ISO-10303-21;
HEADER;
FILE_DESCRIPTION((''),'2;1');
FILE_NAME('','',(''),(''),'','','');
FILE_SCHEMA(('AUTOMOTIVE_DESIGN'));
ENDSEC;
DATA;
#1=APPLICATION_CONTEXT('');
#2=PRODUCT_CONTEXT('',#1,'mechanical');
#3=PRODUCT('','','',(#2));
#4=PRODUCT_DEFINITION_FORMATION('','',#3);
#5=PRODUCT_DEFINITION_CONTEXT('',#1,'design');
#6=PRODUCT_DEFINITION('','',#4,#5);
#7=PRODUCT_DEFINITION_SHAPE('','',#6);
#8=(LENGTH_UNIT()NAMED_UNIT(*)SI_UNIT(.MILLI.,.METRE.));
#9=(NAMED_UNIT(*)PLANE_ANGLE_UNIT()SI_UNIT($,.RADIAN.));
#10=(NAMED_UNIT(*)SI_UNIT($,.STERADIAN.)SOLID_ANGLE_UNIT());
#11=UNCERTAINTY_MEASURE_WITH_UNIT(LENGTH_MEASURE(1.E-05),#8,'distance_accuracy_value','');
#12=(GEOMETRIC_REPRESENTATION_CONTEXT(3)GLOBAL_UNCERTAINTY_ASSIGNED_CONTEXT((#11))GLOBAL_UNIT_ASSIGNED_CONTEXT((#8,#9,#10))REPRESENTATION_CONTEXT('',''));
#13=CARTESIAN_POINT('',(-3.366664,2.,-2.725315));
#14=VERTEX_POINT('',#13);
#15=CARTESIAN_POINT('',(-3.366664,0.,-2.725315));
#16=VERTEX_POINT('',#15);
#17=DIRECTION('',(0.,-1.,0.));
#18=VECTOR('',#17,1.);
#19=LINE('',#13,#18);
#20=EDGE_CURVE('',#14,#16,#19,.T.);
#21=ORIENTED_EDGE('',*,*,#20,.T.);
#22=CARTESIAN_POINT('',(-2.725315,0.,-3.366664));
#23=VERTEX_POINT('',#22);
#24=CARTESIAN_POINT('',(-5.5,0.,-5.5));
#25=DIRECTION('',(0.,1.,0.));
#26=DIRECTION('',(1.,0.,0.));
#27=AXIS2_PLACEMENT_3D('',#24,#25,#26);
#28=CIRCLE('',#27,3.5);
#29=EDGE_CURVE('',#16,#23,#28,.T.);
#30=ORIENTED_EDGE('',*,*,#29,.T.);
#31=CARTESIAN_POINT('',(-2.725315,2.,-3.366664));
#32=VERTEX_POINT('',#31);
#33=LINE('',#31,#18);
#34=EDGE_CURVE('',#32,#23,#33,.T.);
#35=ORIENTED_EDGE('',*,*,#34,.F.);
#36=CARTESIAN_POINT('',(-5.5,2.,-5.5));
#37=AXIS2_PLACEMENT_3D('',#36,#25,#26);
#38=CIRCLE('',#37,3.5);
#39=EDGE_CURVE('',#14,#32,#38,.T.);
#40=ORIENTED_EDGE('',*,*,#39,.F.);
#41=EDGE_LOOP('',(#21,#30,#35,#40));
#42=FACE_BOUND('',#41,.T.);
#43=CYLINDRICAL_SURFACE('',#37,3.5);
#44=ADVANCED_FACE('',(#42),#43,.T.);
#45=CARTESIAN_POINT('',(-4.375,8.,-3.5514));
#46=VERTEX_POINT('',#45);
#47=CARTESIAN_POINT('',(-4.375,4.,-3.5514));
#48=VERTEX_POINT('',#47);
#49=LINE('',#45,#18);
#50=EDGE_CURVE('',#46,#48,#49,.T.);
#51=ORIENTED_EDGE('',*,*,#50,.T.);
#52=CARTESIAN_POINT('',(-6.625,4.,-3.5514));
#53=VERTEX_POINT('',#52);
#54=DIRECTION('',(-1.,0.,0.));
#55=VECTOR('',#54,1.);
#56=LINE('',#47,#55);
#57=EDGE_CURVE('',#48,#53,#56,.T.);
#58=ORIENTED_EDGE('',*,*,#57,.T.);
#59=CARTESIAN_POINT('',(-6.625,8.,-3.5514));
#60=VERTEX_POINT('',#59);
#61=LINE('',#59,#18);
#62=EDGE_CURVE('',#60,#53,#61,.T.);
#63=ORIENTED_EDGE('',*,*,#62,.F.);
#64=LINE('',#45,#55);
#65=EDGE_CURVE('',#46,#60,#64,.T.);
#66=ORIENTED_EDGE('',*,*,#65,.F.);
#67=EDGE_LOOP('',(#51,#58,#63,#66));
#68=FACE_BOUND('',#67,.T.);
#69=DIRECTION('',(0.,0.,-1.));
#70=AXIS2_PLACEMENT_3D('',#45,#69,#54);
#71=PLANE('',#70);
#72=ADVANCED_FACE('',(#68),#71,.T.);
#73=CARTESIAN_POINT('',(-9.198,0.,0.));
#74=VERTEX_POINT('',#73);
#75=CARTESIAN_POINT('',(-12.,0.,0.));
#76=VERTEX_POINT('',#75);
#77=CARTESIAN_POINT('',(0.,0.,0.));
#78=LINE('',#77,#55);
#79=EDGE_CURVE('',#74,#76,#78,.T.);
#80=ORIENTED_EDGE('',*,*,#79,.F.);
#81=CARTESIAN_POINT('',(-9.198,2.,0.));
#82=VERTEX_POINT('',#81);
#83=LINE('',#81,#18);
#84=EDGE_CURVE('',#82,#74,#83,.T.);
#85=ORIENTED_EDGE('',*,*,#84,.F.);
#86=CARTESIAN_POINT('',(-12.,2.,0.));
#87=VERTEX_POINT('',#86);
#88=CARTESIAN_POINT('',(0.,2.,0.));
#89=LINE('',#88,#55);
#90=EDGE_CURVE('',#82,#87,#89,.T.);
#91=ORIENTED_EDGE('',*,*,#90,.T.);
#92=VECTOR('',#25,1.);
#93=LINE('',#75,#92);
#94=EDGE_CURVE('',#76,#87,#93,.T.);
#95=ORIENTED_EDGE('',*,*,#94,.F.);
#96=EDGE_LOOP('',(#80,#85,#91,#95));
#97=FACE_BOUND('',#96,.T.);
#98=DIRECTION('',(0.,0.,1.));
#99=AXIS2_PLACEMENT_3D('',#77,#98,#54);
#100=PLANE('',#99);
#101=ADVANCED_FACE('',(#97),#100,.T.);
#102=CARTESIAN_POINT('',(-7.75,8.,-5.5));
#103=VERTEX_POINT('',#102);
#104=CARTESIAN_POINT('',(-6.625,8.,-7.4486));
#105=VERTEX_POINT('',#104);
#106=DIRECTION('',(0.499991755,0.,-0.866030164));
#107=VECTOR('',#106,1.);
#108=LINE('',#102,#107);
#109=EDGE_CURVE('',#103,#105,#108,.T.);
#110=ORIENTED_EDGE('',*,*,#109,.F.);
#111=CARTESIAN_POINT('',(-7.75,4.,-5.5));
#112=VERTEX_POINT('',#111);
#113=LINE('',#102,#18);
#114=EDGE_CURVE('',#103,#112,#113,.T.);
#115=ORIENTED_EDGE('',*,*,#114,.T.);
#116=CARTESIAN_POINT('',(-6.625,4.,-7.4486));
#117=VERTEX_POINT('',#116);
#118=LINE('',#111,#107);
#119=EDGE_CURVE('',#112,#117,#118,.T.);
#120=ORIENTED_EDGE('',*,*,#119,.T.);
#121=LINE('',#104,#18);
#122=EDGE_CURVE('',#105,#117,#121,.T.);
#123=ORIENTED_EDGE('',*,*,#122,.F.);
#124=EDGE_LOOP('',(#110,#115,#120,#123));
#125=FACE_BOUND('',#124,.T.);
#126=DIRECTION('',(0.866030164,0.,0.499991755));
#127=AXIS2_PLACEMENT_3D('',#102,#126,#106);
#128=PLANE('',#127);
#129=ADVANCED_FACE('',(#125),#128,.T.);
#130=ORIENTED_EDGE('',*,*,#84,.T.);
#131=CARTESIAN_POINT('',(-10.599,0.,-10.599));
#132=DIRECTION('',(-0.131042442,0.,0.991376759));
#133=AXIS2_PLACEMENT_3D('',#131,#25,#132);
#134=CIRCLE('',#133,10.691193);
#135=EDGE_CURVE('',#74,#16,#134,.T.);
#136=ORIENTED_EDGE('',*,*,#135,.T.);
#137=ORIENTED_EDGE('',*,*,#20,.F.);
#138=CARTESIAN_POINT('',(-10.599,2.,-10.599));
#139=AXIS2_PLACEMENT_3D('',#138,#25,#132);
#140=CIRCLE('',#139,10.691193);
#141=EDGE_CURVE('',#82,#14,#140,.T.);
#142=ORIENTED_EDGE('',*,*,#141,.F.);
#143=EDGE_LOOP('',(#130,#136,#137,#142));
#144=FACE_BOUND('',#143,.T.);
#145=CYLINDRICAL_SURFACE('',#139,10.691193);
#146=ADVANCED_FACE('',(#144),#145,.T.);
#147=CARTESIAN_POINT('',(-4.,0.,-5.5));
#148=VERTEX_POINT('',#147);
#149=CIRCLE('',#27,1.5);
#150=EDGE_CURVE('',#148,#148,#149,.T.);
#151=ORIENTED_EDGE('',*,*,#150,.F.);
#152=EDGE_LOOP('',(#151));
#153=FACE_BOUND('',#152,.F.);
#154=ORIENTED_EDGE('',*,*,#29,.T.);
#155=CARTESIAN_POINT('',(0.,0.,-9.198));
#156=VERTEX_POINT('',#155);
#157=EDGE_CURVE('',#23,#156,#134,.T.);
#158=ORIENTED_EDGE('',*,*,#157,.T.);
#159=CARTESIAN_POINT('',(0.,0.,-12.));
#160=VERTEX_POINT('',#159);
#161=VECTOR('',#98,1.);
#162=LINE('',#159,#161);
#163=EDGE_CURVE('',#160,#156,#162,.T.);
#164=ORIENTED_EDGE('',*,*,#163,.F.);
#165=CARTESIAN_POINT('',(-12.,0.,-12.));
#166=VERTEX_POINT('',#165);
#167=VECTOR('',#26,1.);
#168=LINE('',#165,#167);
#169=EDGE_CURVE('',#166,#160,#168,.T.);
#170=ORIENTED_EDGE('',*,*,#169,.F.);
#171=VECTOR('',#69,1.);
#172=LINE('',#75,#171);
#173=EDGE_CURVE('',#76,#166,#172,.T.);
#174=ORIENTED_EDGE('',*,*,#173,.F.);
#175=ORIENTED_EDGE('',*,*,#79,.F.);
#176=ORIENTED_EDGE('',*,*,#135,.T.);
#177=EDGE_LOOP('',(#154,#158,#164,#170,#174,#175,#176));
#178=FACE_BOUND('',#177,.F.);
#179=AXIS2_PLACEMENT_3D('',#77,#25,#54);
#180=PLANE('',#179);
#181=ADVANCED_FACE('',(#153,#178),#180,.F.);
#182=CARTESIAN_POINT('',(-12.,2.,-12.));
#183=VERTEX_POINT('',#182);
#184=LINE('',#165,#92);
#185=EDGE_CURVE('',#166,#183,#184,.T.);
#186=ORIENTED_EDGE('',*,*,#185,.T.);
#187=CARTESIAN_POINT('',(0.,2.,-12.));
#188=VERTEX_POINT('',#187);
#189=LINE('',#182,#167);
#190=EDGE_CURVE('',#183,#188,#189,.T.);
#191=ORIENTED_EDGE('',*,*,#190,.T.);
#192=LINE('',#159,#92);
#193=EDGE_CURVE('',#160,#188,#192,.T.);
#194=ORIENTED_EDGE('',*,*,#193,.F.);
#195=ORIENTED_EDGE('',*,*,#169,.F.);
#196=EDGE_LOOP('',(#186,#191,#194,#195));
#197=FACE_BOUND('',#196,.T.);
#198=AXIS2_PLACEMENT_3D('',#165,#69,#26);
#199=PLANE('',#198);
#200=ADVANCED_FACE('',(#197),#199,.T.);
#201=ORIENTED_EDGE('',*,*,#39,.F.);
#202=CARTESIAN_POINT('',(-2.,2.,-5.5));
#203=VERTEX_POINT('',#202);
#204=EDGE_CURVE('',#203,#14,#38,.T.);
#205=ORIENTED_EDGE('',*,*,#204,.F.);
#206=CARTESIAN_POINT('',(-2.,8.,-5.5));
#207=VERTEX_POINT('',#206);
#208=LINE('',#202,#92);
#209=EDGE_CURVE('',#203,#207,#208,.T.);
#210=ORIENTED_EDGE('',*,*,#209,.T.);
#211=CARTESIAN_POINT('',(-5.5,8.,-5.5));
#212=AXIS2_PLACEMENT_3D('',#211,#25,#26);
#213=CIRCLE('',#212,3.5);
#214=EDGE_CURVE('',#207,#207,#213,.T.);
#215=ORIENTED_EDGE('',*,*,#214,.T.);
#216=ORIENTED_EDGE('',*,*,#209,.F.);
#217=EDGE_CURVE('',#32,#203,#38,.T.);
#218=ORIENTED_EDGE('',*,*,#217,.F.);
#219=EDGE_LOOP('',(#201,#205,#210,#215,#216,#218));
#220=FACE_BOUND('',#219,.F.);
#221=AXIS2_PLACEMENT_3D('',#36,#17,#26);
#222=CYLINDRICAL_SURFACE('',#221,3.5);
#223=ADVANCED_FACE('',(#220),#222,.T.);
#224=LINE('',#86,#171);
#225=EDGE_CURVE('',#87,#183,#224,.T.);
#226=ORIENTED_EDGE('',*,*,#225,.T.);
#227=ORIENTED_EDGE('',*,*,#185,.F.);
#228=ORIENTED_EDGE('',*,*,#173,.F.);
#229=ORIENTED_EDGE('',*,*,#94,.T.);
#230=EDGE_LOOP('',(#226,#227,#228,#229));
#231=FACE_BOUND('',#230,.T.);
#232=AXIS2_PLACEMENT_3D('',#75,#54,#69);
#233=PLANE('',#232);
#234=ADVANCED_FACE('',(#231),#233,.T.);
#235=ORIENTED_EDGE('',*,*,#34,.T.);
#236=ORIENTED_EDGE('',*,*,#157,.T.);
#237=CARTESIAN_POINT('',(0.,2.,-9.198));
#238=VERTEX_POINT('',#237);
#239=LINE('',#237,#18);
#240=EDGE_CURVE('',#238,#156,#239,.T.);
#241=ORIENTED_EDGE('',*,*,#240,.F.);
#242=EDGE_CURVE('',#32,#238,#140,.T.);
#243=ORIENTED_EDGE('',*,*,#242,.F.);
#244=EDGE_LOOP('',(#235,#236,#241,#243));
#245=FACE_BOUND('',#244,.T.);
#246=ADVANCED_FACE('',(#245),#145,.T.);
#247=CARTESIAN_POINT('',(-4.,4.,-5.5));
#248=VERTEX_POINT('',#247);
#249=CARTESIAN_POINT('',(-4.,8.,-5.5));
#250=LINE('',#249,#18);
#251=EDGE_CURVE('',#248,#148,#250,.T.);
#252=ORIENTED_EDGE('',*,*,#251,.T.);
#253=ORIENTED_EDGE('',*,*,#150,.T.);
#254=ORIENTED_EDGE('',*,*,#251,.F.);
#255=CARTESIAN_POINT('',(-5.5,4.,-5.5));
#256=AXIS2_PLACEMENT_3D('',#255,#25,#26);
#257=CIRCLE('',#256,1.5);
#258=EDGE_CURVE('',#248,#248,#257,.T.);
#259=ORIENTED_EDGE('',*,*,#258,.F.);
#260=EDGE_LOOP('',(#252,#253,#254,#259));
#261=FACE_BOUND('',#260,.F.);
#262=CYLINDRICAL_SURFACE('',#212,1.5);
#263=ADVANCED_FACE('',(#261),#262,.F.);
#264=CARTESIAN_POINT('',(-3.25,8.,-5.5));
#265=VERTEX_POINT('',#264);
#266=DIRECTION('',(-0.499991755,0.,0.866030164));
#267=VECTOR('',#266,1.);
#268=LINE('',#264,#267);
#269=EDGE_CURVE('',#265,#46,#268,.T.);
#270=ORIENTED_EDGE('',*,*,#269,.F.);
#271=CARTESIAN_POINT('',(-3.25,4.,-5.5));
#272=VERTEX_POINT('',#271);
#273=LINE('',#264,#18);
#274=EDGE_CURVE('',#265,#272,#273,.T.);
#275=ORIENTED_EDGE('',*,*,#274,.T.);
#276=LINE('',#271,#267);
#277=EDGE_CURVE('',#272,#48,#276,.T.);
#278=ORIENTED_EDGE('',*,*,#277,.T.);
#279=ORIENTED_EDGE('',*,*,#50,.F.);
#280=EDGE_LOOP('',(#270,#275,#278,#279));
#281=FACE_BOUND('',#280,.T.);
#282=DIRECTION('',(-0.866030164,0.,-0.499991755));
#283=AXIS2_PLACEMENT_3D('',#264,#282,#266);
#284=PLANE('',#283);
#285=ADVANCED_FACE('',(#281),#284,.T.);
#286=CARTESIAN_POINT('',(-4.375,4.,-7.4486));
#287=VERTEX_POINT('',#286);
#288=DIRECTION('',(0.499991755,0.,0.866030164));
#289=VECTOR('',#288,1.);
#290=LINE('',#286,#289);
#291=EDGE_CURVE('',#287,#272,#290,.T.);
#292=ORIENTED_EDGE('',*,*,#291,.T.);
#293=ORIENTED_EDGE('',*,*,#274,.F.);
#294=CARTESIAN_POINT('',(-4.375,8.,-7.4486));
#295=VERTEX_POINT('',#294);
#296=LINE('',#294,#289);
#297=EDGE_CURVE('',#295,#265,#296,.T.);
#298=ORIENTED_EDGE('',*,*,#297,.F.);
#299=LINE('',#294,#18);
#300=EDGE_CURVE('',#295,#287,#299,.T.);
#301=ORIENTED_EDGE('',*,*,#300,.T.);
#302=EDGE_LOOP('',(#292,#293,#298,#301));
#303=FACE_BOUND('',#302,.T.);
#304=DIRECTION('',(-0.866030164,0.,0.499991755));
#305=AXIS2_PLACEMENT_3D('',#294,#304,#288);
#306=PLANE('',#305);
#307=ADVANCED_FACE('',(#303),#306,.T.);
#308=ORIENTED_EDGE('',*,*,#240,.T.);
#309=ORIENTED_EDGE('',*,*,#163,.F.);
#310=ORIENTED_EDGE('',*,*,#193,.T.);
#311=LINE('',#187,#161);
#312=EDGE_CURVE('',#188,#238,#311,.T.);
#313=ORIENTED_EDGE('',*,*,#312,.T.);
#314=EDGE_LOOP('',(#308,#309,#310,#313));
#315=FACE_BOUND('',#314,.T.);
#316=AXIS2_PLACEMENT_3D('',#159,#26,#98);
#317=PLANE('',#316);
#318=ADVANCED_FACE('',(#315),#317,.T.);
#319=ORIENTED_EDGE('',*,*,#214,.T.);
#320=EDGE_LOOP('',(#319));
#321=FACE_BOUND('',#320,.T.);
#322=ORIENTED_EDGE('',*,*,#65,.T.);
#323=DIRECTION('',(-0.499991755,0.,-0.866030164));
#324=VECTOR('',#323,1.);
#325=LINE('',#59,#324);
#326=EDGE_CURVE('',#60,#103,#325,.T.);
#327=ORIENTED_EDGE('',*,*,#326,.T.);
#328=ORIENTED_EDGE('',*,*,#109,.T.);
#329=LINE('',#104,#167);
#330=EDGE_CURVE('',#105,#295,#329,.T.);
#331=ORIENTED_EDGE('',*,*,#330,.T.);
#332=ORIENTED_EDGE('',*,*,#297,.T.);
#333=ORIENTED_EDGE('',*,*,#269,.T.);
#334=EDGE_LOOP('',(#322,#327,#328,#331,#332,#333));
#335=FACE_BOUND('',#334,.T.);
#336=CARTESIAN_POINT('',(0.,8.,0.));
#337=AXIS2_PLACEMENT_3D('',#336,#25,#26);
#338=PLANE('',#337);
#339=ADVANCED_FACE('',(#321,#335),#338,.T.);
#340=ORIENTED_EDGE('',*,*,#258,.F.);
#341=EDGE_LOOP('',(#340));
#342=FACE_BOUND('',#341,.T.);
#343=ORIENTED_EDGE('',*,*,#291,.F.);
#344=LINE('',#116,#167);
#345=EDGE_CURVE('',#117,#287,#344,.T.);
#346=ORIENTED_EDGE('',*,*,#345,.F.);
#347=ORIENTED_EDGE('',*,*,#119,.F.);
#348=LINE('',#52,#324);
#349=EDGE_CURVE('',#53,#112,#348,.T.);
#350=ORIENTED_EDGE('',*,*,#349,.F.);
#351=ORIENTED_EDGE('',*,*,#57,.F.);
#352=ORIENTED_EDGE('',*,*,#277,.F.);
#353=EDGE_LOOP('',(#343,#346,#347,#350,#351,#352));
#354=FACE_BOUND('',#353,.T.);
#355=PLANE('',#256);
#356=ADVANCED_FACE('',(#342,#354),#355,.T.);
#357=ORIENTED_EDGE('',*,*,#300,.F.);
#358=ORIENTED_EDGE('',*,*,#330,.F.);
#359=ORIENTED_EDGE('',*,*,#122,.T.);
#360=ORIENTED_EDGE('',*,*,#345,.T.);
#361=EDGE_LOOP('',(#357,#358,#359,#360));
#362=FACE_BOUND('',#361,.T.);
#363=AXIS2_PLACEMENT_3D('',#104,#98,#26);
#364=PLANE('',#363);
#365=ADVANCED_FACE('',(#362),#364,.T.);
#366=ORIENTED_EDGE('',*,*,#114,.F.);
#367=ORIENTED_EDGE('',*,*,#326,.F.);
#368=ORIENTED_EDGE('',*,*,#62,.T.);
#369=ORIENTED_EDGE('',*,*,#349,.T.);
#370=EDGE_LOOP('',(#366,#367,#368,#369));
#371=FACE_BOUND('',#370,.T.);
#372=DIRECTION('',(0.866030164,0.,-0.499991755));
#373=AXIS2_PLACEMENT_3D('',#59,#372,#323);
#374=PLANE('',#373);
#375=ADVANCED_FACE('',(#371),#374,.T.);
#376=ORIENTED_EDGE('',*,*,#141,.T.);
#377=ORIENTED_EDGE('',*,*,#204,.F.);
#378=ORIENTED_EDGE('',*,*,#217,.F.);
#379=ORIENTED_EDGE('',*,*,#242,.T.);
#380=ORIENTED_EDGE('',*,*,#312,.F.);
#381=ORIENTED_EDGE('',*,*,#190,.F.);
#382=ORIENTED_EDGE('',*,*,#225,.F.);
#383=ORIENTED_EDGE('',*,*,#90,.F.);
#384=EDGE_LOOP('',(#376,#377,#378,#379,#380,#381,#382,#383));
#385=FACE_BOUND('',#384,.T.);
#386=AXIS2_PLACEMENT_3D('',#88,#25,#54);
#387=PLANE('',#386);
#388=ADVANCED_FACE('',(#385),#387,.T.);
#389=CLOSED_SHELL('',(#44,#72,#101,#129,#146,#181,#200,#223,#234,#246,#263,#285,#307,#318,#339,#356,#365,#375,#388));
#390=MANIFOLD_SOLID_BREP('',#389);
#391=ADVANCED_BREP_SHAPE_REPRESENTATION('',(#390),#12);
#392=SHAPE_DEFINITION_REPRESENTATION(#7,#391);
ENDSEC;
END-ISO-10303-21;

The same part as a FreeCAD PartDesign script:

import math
import FreeCAD as App
import Part
import Sketcher

V = App.Vector
Q = App.Units.Quantity

doc = App.newDocument("Part")
body = doc.addObject("PartDesign::Body", "Body")

# Sketch on XZ plane
sketch1 = body.newObject("Sketcher::SketchObject", "Sketch")
sketch1.AttachmentSupport = (doc.getObject("XZ_Plane"), [""])
sketch1.MapMode = "FlatFace"
sketch1.addGeometry(Part.LineSegment(V(-12, 0, 0), V(0, 0, 0)), False)
sketch1.addGeometry(Part.LineSegment(V(0, 0, 0), V(0, -12, 0)), False)
sketch1.addGeometry(Part.LineSegment(V(0, -12, 0), V(-12, -12, 0)), False)
sketch1.addGeometry(Part.LineSegment(V(-12, -12, 0), V(-12, 0, 0)), False)
sketch1.addConstraint(Sketcher.Constraint("Coincident", 0, 2, 1, 1))
sketch1.addConstraint(Sketcher.Constraint("Coincident", 1, 2, 2, 1))
sketch1.addConstraint(Sketcher.Constraint("Coincident", 2, 2, 3, 1))
sketch1.addConstraint(Sketcher.Constraint("Coincident", 3, 2, 0, 1))
sketch1.addConstraint(Sketcher.Constraint("Horizontal", 0))
sketch1.addConstraint(Sketcher.Constraint("Vertical", 1))
sketch1.addConstraint(Sketcher.Constraint("Horizontal", 2))
sketch1.addConstraint(Sketcher.Constraint("Vertical", 3))
sketch1.addConstraint(Sketcher.Constraint("Coincident", 0, 2, -1, 1))
sketch1.addConstraint(Sketcher.Constraint("Equal", 2, 1))
sketch1.addConstraint(Sketcher.Constraint("DistanceX", 0, 1, 0, 2, 12.0))
pad1 = body.newObject("PartDesign::Pad", "Pad")
pad1.Profile = sketch1
pad1.Length = 2
pad1.Reversed = True

# Sketch on XZ plane
sketch2 = body.newObject("Sketcher::SketchObject", "Sketch001")
sketch2.AttachmentSupport = (doc.getObject("XZ_Plane"), [""])
sketch2.MapMode = "FlatFace"
sketch2.AttachmentOffset = App.Placement(V(0, 0, -2), App.Rotation())
sketch2.addGeometry(Part.Circle(V(-5.5, -5.5, 0), V(0, 0, 1), 3.5), False)
sketch2.addConstraint(Sketcher.Constraint("Diameter", 0, 7.0))
sketch2.addConstraint(Sketcher.Constraint("DistanceX", 0, 3, -1, 1, 5.5))
sketch2.addConstraint(Sketcher.Constraint("DistanceY", 0, 3, -1, 1, 5.5))
pad2 = body.newObject("PartDesign::Pad", "Pad001")
pad2.Profile = sketch2
pad2.Length = 6
pad2.Reversed = True

# Sketch on XZ plane
sketch3 = body.newObject("Sketcher::SketchObject", "Sketch002")
sketch3.AttachmentSupport = (doc.getObject("XZ_Plane"), [""])
sketch3.MapMode = "FlatFace"
sketch3.AttachmentOffset = App.Placement(V(0, 0, -8), App.Rotation())
sketch3.addGeometry(Part.Circle(V(-5.5, -5.5, 0), V(0, 0, 1), 1.5), False)
sketch3.addConstraint(Sketcher.Constraint("Diameter", 0, 3.0))
sketch3.addConstraint(Sketcher.Constraint("DistanceX", 0, 3, -1, 1, 5.5))
sketch3.addConstraint(Sketcher.Constraint("DistanceY", 0, 3, -1, 1, 5.5))
pocket1 = body.newObject("PartDesign::Pocket", "Pocket")
pocket1.Profile = sketch3
pocket1.Length = 8
pocket1.Reversed = True

# Sketch on XZ plane
sketch4 = body.newObject("Sketcher::SketchObject", "Sketch003")
sketch4.AttachmentSupport = (doc.getObject("XZ_Plane"), [""])
sketch4.MapMode = "FlatFace"
sketch4.AttachmentOffset = App.Placement(V(0, 0, -8), App.Rotation())
sketch4.addGeometry(Part.LineSegment(V(-4.4, -3.6, 0), V(-3.2, -5.5, 0)), False)
sketch4.addGeometry(Part.LineSegment(V(-3.2, -5.5, 0), V(-4.4, -7.4, 0)), False)
sketch4.addGeometry(Part.LineSegment(V(-4.4, -7.4, 0), V(-6.6, -7.4, 0)), False)
sketch4.addGeometry(Part.LineSegment(V(-6.6, -7.4, 0), V(-7.8, -5.5, 0)), False)
sketch4.addGeometry(Part.LineSegment(V(-7.8, -5.5, 0), V(-6.6, -3.6, 0)), False)
sketch4.addGeometry(Part.LineSegment(V(-6.6, -3.6, 0), V(-4.4, -3.6, 0)), False)
sketch4.addGeometry(Part.Circle(V(-5.5, -5.5, 0), V(0, 0, 1), 1.5), False)
sketch4.addConstraint(Sketcher.Constraint("Coincident", 0, 2, 1, 1))
sketch4.addConstraint(Sketcher.Constraint("Coincident", 1, 2, 2, 1))
sketch4.addConstraint(Sketcher.Constraint("Coincident", 2, 2, 3, 1))
sketch4.addConstraint(Sketcher.Constraint("Coincident", 3, 2, 4, 1))
sketch4.addConstraint(Sketcher.Constraint("Coincident", 4, 2, 5, 1))
sketch4.addConstraint(Sketcher.Constraint("Coincident", 5, 2, 0, 1))
sketch4.addConstraint(Sketcher.Constraint("Horizontal", 2))
sketch4.addConstraint(Sketcher.Constraint("Horizontal", 5))
sketch4.addConstraint(Sketcher.Constraint("Parallel", 0, 3))
sketch4.addConstraint(Sketcher.Constraint("Parallel", 1, 4))
sketch4.addConstraint(Sketcher.Constraint("Horizontal", 6, 3, 0, 2))
sketch4.addConstraint(Sketcher.Constraint("Horizontal", 0, 2, 3, 2))
sketch4.addConstraint(Sketcher.Constraint("Vertical", 2, 2, 4, 2))
sketch4.addConstraint(Sketcher.Constraint("Vertical", 1, 2, 5, 2))
sketch4.addConstraint(Sketcher.Constraint("Diameter", 6, 3.0))
sketch4.addConstraint(Sketcher.Constraint("DistanceX", 3, 2, 0, 2, 4.5))
sketch4.addConstraint(Sketcher.Constraint("Angle", 0, Q("-60.0005 deg")))
sketch4.addConstraint(Sketcher.Constraint("DistanceX", 2, 2, 2, 1, 2.25))
sketch4.addConstraint(Sketcher.Constraint("DistanceX", 6, 3, -1, 1, 5.5))
sketch4.addConstraint(Sketcher.Constraint("DistanceY", 6, 3, -1, 1, 5.5))
sketch4.addConstraint(Sketcher.Constraint("DistanceX", 0, 2, -1, 1, 3.25))
pocket2 = body.newObject("PartDesign::Pocket", "Pocket001")
pocket2.Profile = sketch4
pocket2.Length = 4
pocket2.Reversed = True

# Sketch on XZ plane
sketch5 = body.newObject("Sketcher::SketchObject", "Sketch004")
sketch5.AttachmentSupport = (doc.getObject("XZ_Plane"), [""])
sketch5.MapMode = "FlatFace"
sketch5.AttachmentOffset = App.Placement(V(0, 0, -2), App.Rotation())
sketch5.addGeometry(Part.ArcOfCircle(Part.Circle(V(-10.6, -10.6, 0), V(0, 0, 1), 10.7), math.radians(47), math.radians(82)), False)
sketch5.addGeometry(Part.LineSegment(V(-9.2, 0, 0), V(0, 0, 0)), False)
sketch5.addGeometry(Part.LineSegment(V(0, 0, 0), V(0, -9.2, 0)), False)
sketch5.addGeometry(Part.ArcOfCircle(Part.Circle(V(-10.6, -10.6, 0), V(0, 0, 1), 10.7), math.radians(8), math.radians(43)), False)
sketch5.addGeometry(Part.ArcOfCircle(Part.Circle(V(-5.5, -5.5, 0), V(0, 0, 1), 3.5), math.radians(37.56), math.radians(52.44)), False)
sketch5.addConstraint(Sketcher.Constraint("Coincident", 0, 2, 1, 1))
sketch5.addConstraint(Sketcher.Constraint("Coincident", 1, 2, 2, 1))
sketch5.addConstraint(Sketcher.Constraint("Coincident", 2, 2, 3, 1))
sketch5.addConstraint(Sketcher.Constraint("Coincident", 3, 2, 4, 1))
sketch5.addConstraint(Sketcher.Constraint("Coincident", 4, 2, 0, 1))
sketch5.addConstraint(Sketcher.Constraint("Horizontal", 1))
sketch5.addConstraint(Sketcher.Constraint("Vertical", 2))
sketch5.addConstraint(Sketcher.Constraint("Coincident", 1, 2, -1, 1))
sketch5.addConstraint(Sketcher.Constraint("Coincident", 3, 3, 0, 3))
sketch5.addConstraint(Sketcher.Constraint("Equal", 0, 3))
sketch5.addConstraint(Sketcher.Constraint("Equal", 1, 2))
sketch5.addConstraint(Sketcher.Constraint("Radius", 4, 3.5))
sketch5.addConstraint(Sketcher.Constraint("DistanceX", 4, 3, -1, 1, 5.5))
sketch5.addConstraint(Sketcher.Constraint("DistanceY", 4, 3, -1, 1, 5.5))
sketch5.addConstraint(Sketcher.Constraint("Radius", 0, 10.6912))
sketch5.addConstraint(Sketcher.Constraint("DistanceX", 1, 1, 1, 2, 9.198))
pocket3 = body.newObject("PartDesign::Pocket", "Pocket002")
pocket3.Profile = sketch5
pocket3.Length = 4
pocket3.Reversed = True

doc.recompute()
